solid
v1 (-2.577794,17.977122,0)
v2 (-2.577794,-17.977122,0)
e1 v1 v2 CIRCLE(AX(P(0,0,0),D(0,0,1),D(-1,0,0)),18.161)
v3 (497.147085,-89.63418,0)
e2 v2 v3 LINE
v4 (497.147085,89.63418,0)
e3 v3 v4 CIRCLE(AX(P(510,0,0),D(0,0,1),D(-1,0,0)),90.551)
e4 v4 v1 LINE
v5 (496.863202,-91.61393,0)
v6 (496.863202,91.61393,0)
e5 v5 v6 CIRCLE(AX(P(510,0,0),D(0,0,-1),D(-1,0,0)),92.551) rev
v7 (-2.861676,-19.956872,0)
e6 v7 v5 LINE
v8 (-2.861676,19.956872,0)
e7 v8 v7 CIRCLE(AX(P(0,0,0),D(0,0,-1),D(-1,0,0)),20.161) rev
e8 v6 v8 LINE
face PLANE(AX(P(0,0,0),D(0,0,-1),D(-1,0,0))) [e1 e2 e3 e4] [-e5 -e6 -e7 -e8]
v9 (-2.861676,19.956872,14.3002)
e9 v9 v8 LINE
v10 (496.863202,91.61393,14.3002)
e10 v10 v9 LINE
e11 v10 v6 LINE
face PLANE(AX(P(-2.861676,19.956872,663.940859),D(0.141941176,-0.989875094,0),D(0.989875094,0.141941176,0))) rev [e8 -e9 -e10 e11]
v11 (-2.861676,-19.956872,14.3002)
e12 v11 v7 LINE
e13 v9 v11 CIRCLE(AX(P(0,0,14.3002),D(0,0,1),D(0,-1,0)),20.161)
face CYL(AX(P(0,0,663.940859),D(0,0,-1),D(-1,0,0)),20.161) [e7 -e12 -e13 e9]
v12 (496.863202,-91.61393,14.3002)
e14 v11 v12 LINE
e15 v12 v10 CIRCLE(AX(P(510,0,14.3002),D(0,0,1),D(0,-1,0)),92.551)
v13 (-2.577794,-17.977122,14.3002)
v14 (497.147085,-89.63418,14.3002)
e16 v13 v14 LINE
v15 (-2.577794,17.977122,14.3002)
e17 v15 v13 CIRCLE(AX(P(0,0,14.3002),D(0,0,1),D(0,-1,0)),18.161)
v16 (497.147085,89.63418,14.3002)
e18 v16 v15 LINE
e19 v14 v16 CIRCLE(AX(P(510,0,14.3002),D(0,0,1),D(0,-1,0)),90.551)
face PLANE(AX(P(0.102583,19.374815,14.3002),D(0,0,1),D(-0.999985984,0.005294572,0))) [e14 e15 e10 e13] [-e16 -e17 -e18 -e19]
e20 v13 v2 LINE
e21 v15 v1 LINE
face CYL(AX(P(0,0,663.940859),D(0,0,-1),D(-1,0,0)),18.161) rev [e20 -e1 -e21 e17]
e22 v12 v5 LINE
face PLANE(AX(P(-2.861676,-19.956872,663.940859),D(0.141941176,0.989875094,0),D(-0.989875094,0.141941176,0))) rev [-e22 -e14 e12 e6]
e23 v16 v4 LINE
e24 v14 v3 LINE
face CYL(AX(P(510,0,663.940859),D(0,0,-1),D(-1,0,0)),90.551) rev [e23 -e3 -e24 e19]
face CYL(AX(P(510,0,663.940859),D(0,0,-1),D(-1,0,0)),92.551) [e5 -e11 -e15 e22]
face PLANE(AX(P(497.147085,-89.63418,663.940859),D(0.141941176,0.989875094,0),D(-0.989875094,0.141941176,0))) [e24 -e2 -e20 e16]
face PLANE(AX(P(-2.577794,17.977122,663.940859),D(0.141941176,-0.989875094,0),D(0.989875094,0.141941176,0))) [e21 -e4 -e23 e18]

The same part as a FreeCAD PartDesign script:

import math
import FreeCAD as App
import Part
import Sketcher

V = App.Vector
Q = App.Units.Quantity

doc = App.newDocument("Part")
body = doc.addObject("PartDesign::Body", "Body")

# Sketch on XY plane
sketch1 = body.newObject("Sketcher::SketchObject", "Sketch")
sketch1.AttachmentSupport = (doc.getObject("XY_Plane"), [""])
sketch1.MapMode = "FlatFace"
sketch1.addGeometry(Part.LineSegment(V(-3, -20, 0), V(497, -92, 0)), False)
sketch1.addGeometry(Part.ArcOfCircle(Part.Circle(V(510, 0, 0), V(0, 0, 1), 93), math.radians(-98), math.radians(98)), False)
sketch1.addGeometry(Part.LineSegment(V(497, 92, 0), V(-3, 20, 0)), False)
sketch1.addGeometry(Part.ArcOfCircle(Part.Circle(V(0, 0, 0), V(0, 0, 1), 20), math.radians(98), math.radians(262)), False)
sketch1.addGeometry(Part.LineSegment(V(497, -90, 0), V(-3, -18, 0)), False)
sketch1.addGeometry(Part.ArcOfCircle(Part.Circle(V(0, 0, 0), V(0, 0, 1), 18), math.radians(98), math.radians(262)), False)
sketch1.addGeometry(Part.LineSegment(V(-3, 18, 0), V(497, 90, 0)), False)
sketch1.addGeometry(Part.ArcOfCircle(Part.Circle(V(510, 0, 0), V(0, 0, 1), 91), math.radians(-98), math.radians(98)), False)
sketch1.addConstraint(Sketcher.Constraint("Tangent", 0, 2, 1, 1))
sketch1.addConstraint(Sketcher.Constraint("Tangent", 1, 2, 2, 1))
sketch1.addConstraint(Sketcher.Constraint("Tangent", 2, 2, 3, 1))
sketch1.addConstraint(Sketcher.Constraint("Tangent", 3, 2, 0, 1))
sketch1.addConstraint(Sketcher.Constraint("Tangent", 4, 2, 5, 2))
sketch1.addConstraint(Sketcher.Constraint("Tangent", 5, 1, 6, 1))
sketch1.addConstraint(Sketcher.Constraint("Tangent", 6, 2, 7, 2))
sketch1.addConstraint(Sketcher.Constraint("Tangent", 7, 1, 4, 1))
sketch1.addConstraint(Sketcher.Constraint("Coincident", 3, 3, -1, 1))
sketch1.addConstraint(Sketcher.Constraint("Coincident", 5, 3, -1, 1))
sketch1.addConstraint(Sketcher.Constraint("Coincident", 7, 3, 1, 3))
sketch1.addConstraint(Sketcher.Constraint("PointOnObject", 1, 3, -1))
sketch1.addConstraint(Sketcher.Constraint("Parallel", 0, 4))
sketch1.addConstraint(Sketcher.Constraint("Radius", 5, Q("0.715 in")))
sketch1.addConstraint(Sketcher.Constraint("Radius", 7, Q("3.565 in")))
sketch1.addConstraint(Sketcher.Constraint("Radius", 1, Q("92.551 mm")))
sketch1.addConstraint(Sketcher.Constraint("Distance", 0, Q("504.836298 mm")))
pad1 = body.newObject("PartDesign::Pad", "Pad")
pad1.Profile = sketch1
pad1.Length = Q("0.563 in")

doc.recompute()
